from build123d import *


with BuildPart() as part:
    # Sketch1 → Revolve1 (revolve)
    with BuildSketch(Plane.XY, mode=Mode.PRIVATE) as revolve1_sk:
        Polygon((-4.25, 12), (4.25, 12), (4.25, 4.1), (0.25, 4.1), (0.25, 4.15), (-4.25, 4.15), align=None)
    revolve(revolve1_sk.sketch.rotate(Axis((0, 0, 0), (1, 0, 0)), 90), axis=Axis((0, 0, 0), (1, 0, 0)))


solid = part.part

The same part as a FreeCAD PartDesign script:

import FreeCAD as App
import Part
import Sketcher


def add_polygon(sketch, points):
    """Adds a closed chain of lines whose ends are joined by coincident constraints."""
    first, n = sketch.GeometryCount, len(points)
    for a, b in zip(points, points[1:] + points[:1]):
        sketch.addGeometry(Part.LineSegment(App.Vector(*a, 0), App.Vector(*b, 0)), False)
    for i in range(n):
        sketch.addConstraint(Sketcher.Constraint("Coincident", first + i, 2, first + (i + 1) % n, 1))

doc = App.newDocument("Part")
body = doc.addObject("PartDesign::Body", "Body")

sketch1 = body.newObject("Sketcher::SketchObject", "Sketch")
sketch1.AttachmentSupport = (doc.getObject("XY_Plane"), [""])
sketch1.MapMode = "FlatFace"
add_polygon(sketch1, [(4.25, 12), (-4.25, 12), (-4.25, 4.15), (0.25, 4.15), (0.25, 4.1), (4.25, 4.1)])
sketch1.addConstraint(Sketcher.Constraint("Horizontal", 0))
sketch1.addConstraint(Sketcher.Constraint("Vertical", 1))
sketch1.addConstraint(Sketcher.Constraint("Horizontal", 2))
sketch1.addConstraint(Sketcher.Constraint("Vertical", 3))
sketch1.addConstraint(Sketcher.Constraint("Horizontal", 4))
sketch1.addConstraint(Sketcher.Constraint("Vertical", 5))
sketch1.addConstraint(Sketcher.Constraint("DistanceX", 4, 1, 4, 2, 4.0))
sketch1.addConstraint(Sketcher.Constraint("DistanceX", 0, 2, 0, 1, 8.5))
sketch1.addConstraint(Sketcher.Constraint("DistanceY", 5, 1, 5, 2, 7.9))
sketch1.addConstraint(Sketcher.Constraint("DistanceY", -1, 1, 0, 2, 12.0))
sketch1.addConstraint(Sketcher.Constraint("DistanceY", 1, 2, 1, 1, 7.85))
sketch1.addConstraint(Sketcher.Constraint("DistanceX", 0, 2, -1, 1, 4.25))
revolution = body.newObject("PartDesign::Revolution", "Revolution")
revolution.Profile = sketch1
revolution.ReferenceAxis = (sketch1, ["H_Axis"])
revolution.Angle = 360

doc.recompute()
